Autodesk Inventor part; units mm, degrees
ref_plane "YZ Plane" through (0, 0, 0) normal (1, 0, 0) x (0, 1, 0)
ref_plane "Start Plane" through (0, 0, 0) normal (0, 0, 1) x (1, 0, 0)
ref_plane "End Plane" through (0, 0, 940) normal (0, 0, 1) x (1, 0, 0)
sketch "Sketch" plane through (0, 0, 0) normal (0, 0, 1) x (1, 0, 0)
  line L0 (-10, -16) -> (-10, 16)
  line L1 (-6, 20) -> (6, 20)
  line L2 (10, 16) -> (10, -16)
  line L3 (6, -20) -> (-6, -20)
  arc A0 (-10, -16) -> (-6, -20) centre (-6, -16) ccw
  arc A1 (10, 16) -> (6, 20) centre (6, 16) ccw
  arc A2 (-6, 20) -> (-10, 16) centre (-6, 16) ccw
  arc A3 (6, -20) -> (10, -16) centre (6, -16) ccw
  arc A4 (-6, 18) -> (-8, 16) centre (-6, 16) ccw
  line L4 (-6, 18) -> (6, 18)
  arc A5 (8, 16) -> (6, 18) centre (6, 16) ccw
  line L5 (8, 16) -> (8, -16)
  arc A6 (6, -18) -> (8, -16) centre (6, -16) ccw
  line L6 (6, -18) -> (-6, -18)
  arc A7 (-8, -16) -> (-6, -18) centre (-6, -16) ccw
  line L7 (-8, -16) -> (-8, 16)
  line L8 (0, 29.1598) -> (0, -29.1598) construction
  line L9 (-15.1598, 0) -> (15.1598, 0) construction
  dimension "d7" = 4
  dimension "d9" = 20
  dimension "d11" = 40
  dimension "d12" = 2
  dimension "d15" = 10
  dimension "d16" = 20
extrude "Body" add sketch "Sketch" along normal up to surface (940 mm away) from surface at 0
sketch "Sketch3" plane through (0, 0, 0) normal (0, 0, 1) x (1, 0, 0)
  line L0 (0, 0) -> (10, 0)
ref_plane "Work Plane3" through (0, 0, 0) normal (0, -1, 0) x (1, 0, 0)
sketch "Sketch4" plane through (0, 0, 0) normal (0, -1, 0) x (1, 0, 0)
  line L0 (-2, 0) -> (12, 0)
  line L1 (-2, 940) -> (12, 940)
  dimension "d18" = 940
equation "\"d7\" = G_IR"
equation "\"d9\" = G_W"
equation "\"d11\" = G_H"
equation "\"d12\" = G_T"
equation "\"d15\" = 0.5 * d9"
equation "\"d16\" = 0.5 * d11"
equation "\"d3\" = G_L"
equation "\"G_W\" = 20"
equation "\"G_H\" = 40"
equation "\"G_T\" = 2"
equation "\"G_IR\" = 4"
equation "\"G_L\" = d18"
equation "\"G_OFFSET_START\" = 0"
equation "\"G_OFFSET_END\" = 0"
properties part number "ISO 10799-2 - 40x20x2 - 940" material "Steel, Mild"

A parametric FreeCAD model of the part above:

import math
import FreeCAD as App
import Part
import Sketcher

V = App.Vector

doc = App.newDocument("Part")
body = doc.addObject("PartDesign::Body", "Body")

sketch1 = body.newObject("Sketcher::SketchObject", "Sketch")
sketch1.AttachmentSupport = (doc.getObject("XY_Plane"), [""])
sketch1.MapMode = "FlatFace"
sketch1.addGeometry(Part.LineSegment(V(-10, 16, 0), V(-10, -16, 0)), False)
sketch1.addGeometry(Part.ArcOfCircle(Part.Circle(V(-6, -16, 0), V(0, 0, 1), 4), math.radians(180), math.radians(270)), False)
sketch1.addGeometry(Part.LineSegment(V(-6, -20, 0), V(6, -20, 0)), False)
sketch1.addGeometry(Part.ArcOfCircle(Part.Circle(V(6, -16, 0), V(0, 0, 1), 4), math.radians(-90), math.radians(0)), False)
sketch1.addGeometry(Part.LineSegment(V(10, -16, 0), V(10, 16, 0)), False)
sketch1.addGeometry(Part.ArcOfCircle(Part.Circle(V(6, 16, 0), V(0, 0, 1), 4), math.radians(0), math.radians(90)), False)
sketch1.addGeometry(Part.LineSegment(V(6, 20, 0), V(-6, 20, 0)), False)
sketch1.addGeometry(Part.ArcOfCircle(Part.Circle(V(-6, 16, 0), V(0, 0, 1), 4), math.radians(90), math.radians(180)), False)
sketch1.addGeometry(Part.ArcOfCircle(Part.Circle(V(-6, 16, 0), V(0, 0, 1), 2), math.radians(90), math.radians(180)), False)
sketch1.addGeometry(Part.LineSegment(V(-6, 18, 0), V(6, 18, 0)), False)
sketch1.addGeometry(Part.ArcOfCircle(Part.Circle(V(6, 16, 0), V(0, 0, 1), 2), math.radians(0), math.radians(90)), False)
sketch1.addGeometry(Part.LineSegment(V(8, 16, 0), V(8, -16, 0)), False)
sketch1.addGeometry(Part.ArcOfCircle(Part.Circle(V(6, -16, 0), V(0, 0, 1), 2), math.radians(-90), math.radians(0)), False)
sketch1.addGeometry(Part.LineSegment(V(6, -18, 0), V(-6, -18, 0)), False)
sketch1.addGeometry(Part.ArcOfCircle(Part.Circle(V(-6, -16, 0), V(0, 0, 1), 2), math.radians(180), math.radians(270)), False)
sketch1.addGeometry(Part.LineSegment(V(-8, -16, 0), V(-8, 16, 0)), False)
sketch1.addConstraint(Sketcher.Constraint("Tangent", 0, 2, 1, 1))
sketch1.addConstraint(Sketcher.Constraint("Tangent", 1, 2, 2, 1))
sketch1.addConstraint(Sketcher.Constraint("Tangent", 2, 2, 3, 1))
sketch1.addConstraint(Sketcher.Constraint("Tangent", 3, 2, 4, 1))
sketch1.addConstraint(Sketcher.Constraint("Tangent", 4, 2, 5, 1))
sketch1.addConstraint(Sketcher.Constraint("Tangent", 5, 2, 6, 1))
sketch1.addConstraint(Sketcher.Constraint("Tangent", 6, 2, 7, 1))
sketch1.addConstraint(Sketcher.Constraint("Tangent", 7, 2, 0, 1))
sketch1.addConstraint(Sketcher.Constraint("Tangent", 8, 1, 9, 1))
sketch1.addConstraint(Sketcher.Constraint("Tangent", 9, 2, 10, 2))
sketch1.addConstraint(Sketcher.Constraint("Tangent", 10, 1, 11, 1))
sketch1.addConstraint(Sketcher.Constraint("Tangent", 11, 2, 12, 2))
sketch1.addConstraint(Sketcher.Constraint("Tangent", 12, 1, 13, 1))
sketch1.addConstraint(Sketcher.Constraint("Tangent", 13, 2, 14, 2))
sketch1.addConstraint(Sketcher.Constraint("Tangent", 14, 1, 15, 1))
sketch1.addConstraint(Sketcher.Constraint("Tangent", 15, 2, 8, 2))
sketch1.addConstraint(Sketcher.Constraint("Vertical", 0))
sketch1.addConstraint(Sketcher.Constraint("Horizontal", 2))
sketch1.addConstraint(Sketcher.Constraint("Vertical", 4))
sketch1.addConstraint(Sketcher.Constraint("Horizontal", 6))
sketch1.addConstraint(Sketcher.Constraint("Horizontal", 9))
sketch1.addConstraint(Sketcher.Constraint("Vertical", 11))
sketch1.addConstraint(Sketcher.Constraint("Horizontal", 13))
sketch1.addConstraint(Sketcher.Constraint("Vertical", 15))
sketch1.addConstraint(Sketcher.Constraint("Coincident", 8, 3, 7, 3))
sketch1.addConstraint(Sketcher.Constraint("Coincident", 10, 3, 5, 3))
sketch1.addConstraint(Sketcher.Constraint("Coincident", 12, 3, 3, 3))
sketch1.addConstraint(Sketcher.Constraint("Equal", 1, 3))
sketch1.addConstraint(Sketcher.Constraint("Equal", 3, 5))
sketch1.addConstraint(Sketcher.Constraint("Equal", 5, 7))
sketch1.addConstraint(Sketcher.Constraint("Equal", 12, 14))
sketch1.addConstraint(Sketcher.Constraint("Symmetric", 1, 3, 5, 3, -1, 1))
sketch1.addConstraint(Sketcher.Constraint("Radius", 1, 4.0))
sketch1.addConstraint(Sketcher.Constraint("Radius", 8, 2.0))
sketch1.addConstraint(Sketcher.Constraint("DistanceX", 0, 2, -1, 1, 10.0))
sketch1.addConstraint(Sketcher.Constraint("DistanceY", 1, 2, -1, 1, 20.0))
pad1 = body.newObject("PartDesign::Pad", "Pad")
pad1.Profile = sketch1
pad1.Length = 940

doc.recompute()
